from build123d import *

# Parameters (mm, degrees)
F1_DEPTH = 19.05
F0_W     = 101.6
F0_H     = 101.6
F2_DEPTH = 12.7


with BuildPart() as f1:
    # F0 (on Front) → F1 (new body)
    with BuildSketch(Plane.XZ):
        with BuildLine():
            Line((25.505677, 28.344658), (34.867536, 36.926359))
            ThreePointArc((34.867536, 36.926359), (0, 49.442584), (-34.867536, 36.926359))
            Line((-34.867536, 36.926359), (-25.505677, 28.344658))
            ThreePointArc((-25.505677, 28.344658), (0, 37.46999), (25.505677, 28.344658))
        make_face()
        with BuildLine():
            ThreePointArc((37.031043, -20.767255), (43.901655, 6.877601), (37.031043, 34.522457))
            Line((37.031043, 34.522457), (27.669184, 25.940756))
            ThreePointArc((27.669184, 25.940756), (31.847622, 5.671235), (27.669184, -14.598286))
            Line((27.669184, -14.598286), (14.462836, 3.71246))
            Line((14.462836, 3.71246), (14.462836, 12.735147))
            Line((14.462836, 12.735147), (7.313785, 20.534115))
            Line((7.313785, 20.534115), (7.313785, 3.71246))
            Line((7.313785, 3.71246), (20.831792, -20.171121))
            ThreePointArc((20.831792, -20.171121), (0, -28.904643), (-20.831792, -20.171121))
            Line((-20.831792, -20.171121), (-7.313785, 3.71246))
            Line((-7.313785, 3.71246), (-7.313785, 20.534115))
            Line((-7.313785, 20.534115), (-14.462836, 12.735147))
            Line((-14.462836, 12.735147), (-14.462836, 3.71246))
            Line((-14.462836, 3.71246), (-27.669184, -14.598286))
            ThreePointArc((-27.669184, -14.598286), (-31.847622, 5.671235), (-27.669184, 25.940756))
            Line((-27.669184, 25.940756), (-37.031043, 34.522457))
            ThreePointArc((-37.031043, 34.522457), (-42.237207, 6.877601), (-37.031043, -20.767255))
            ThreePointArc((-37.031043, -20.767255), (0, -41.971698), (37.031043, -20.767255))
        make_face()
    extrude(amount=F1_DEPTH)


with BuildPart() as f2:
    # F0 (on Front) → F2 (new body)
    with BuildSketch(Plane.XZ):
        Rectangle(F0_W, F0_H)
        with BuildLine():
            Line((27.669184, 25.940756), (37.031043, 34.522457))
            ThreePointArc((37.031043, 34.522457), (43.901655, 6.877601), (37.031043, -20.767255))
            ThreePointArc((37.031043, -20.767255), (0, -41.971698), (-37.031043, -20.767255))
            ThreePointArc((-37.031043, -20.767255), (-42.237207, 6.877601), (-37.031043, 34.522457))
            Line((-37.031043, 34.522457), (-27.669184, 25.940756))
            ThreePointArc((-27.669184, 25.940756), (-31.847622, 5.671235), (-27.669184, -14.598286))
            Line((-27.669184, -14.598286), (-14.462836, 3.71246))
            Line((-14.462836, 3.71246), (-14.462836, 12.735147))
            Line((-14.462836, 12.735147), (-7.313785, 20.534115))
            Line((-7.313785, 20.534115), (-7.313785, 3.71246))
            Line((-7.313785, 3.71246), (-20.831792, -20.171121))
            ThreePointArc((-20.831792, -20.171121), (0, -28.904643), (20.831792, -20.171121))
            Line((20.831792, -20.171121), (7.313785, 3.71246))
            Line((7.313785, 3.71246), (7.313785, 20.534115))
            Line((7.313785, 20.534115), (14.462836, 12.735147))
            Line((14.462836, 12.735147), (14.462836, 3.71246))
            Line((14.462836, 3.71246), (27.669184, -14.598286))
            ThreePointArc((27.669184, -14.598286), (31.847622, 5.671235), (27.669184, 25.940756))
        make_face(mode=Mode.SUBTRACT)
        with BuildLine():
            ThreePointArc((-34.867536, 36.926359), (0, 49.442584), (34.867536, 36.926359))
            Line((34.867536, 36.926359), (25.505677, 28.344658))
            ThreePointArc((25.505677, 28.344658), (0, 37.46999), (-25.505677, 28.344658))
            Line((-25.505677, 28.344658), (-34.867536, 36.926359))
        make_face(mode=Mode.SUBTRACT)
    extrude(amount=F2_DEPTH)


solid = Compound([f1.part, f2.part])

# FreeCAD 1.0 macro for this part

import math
import FreeCAD as App
import Part
import Sketcher

V = App.Vector
Q = App.Units.Quantity

doc = App.newDocument("Part")
body = doc.addObject("PartDesign::Body", "Body")
body.AllowCompound = True

sketch1 = doc.addObject("Sketcher::SketchObject", "Sketch")
body.addObject(sketch1)
sketch1.AttachmentSupport = (doc.XZ_Plane, [""])
sketch1.MapMode = "FlatFace"
sketch1.addGeometry([
    Part.LineSegment(V(26, 28, 0), V(35, 37, 0)),
    Part.ArcOfCircle(Part.Circle(V(0, -5, 0), V(0, 0, 1), 55), math.radians(51), math.radians(129)),
    Part.LineSegment(V(-35, 37, 0), V(-26, 28, 0)),
    Part.ArcOfCircle(Part.Circle(V(0, -3, 0), V(0, 0, 1), 40), math.radians(51), math.radians(129)),
    Part.ArcOfCircle(Part.Circle(V(-15, 7, 0), V(0, 0, 1), 59), math.radians(-28), math.radians(28)),
    Part.LineSegment(V(37, 35, 0), V(28, 26, 0)),
    Part.ArcOfCircle(Part.Circle(V(-19, 6, 0), V(0, 0, 1), 51), math.radians(-23), math.radians(23)),
    Part.LineSegment(V(28, -15, 0), V(14, 4, 0)),
    Part.LineSegment(V(14, 4, 0), V(14, 13, 0)),
    Part.LineSegment(V(14, 13, 0), V(7, 21, 0)),
    Part.LineSegment(V(7, 21, 0), V(7, 4, 0)),
    Part.LineSegment(V(7, 4, 0), V(21, -20, 0)),
    Part.ArcOfCircle(Part.Circle(V(0, 0, 0), V(0, 0, 1), 29), math.radians(-135), math.radians(-45)),
    Part.LineSegment(V(-21, -20, 0), V(-7, 4, 0)),
    Part.LineSegment(V(-7, 4, 0), V(-7, 21, 0)),
    Part.LineSegment(V(-7, 21, 0), V(-14, 13, 0)),
    Part.LineSegment(V(-14, 13, 0), V(-14, 4, 0)),
    Part.LineSegment(V(-14, 4, 0), V(-28, -15, 0)),
    Part.ArcOfCircle(Part.Circle(V(19, 6, 0), V(0, 0, 1), 51), math.radians(157), math.radians(203)),
    Part.LineSegment(V(-28, 26, 0), V(-37, 35, 0)),
    Part.ArcOfCircle(Part.Circle(V(34, 7, 0), V(0, 0, 1), 76), math.radians(159), math.radians(201)),
    Part.ArcOfCircle(Part.Circle(V(0, 1, 0), V(0, 0, 1), 43), math.radians(-150), math.radians(-30)),
], False)
sketch1.addConstraint([
    Sketcher.Constraint("Coincident", 0, 2, 1, 1),
    Sketcher.Constraint("Coincident", 1, 2, 2, 1),
    Sketcher.Constraint("Coincident", 2, 2, 3, 2),
    Sketcher.Constraint("Coincident", 3, 1, 0, 1),
    Sketcher.Constraint("Coincident", 4, 2, 5, 1),
    Sketcher.Constraint("Coincident", 5, 2, 6, 2),
    Sketcher.Constraint("Coincident", 6, 1, 7, 1),
    Sketcher.Constraint("Coincident", 7, 2, 8, 1),
    Sketcher.Constraint("Coincident", 8, 2, 9, 1),
    Sketcher.Constraint("Coincident", 9, 2, 10, 1),
    Sketcher.Constraint("Coincident", 10, 2, 11, 1),
    Sketcher.Constraint("Coincident", 11, 2, 12, 2),
    Sketcher.Constraint("Coincident", 12, 1, 13, 1),
    Sketcher.Constraint("Coincident", 13, 2, 14, 1),
    Sketcher.Constraint("Coincident", 14, 2, 15, 1),
    Sketcher.Constraint("Coincident", 15, 2, 16, 1),
    Sketcher.Constraint("Coincident", 16, 2, 17, 1),
    Sketcher.Constraint("Coincident", 17, 2, 18, 2),
    Sketcher.Constraint("Coincident", 18, 1, 19, 1),
    Sketcher.Constraint("Coincident", 19, 2, 20, 1),
    Sketcher.Constraint("Coincident", 20, 2, 21, 1),
    Sketcher.Constraint("Coincident", 21, 2, 4, 1),
    Sketcher.Constraint("Vertical", 8),
    Sketcher.Constraint("Vertical", 10),
    Sketcher.Constraint("Vertical", 14),
    Sketcher.Constraint("Vertical", 16),
    Sketcher.Constraint("Equal", 6, 18),
    Sketcher.Constraint("Symmetric", 6, 3, 18, 3, -2),
    Sketcher.Constraint("Symmetric", 0, 2, 1, 2, -2),
    Sketcher.Constraint("Symmetric", 2, 2, 3, 1, -2),
    Sketcher.Constraint("Symmetric", 11, 2, 12, 1, -2),
    Sketcher.Constraint("Symmetric", 10, 2, 13, 2, -2),
    Sketcher.Constraint("Symmetric", 8, 2, 15, 2, -2),
    Sketcher.Constraint("Symmetric", 4, 2, 19, 2, -2),
    Sketcher.Constraint("Symmetric", 20, 2, 21, 2, -2),
    Sketcher.Constraint("Parallel", 0, 5),
    Sketcher.Constraint("Perpendicular", 5, 9),
    Sketcher.Constraint("Perpendicular", 2, 15),
    Sketcher.Constraint("Perpendicular", 15, 19),
    Sketcher.Constraint("Horizontal", 4, 3, 20, 3),
    Sketcher.Constraint("Horizontal", 7, 2, 10, 2),
    Sketcher.Constraint("Horizontal", 13, 2, 16, 2),
    Sketcher.Constraint("Horizontal", 6, 1, 17, 2),
    Sketcher.Constraint("Vertical", 5, 2, 6, 1),
    Sketcher.Constraint("Equal", 2, 5),
    Sketcher.Constraint("Distance", 0, Q("0.5 in")),
    Sketcher.Constraint("Radius", 1, 54.824876),
    Sketcher.Constraint("Radius", 3, 40.207372),
    Sketcher.Constraint("Radius", 4, 59.051754),
    Sketcher.Constraint("Radius", 6, 51.252744),
    Sketcher.Constraint("Radius", 12, 29.211466),
    Sketcher.Constraint("Radius", 20, 76.000507),
    Sketcher.Constraint("Radius", 21, 42.937382),
    Sketcher.Constraint("DistanceX", 2, 2, 4, 3, Q("0.4076999 in")),
    Sketcher.Constraint("DistanceX", 4, 3, -1, 1, 15.150099),
    Sketcher.Constraint("DistanceY", -1, 1, 4, 3, 6.877601),
    Sketcher.Constraint("DistanceX", -1, 1, 20, 3, 33.7633),
    Sketcher.Constraint("DistanceY", 2, 2, 1, 2, 8.581701),
    Sketcher.Constraint("DistanceY", 4, 2, 0, 2, 2.403902),
    Sketcher.Constraint("DistanceX", 17, 2, 13, 2, 20.355399),
    Sketcher.Constraint("Distance", 7, 22.576338),
    Sketcher.Constraint("Distance", 9, 10.579831),
    Sketcher.Constraint("DistanceY", 8, 1, 8, 2, 9.022687),
    Sketcher.Constraint("DistanceX", 6, 3, -1, 1, 19.405122),
    Sketcher.Constraint("DistanceX", -1, 1, 11, 2, 20.831792),
    Sketcher.Constraint("DistanceY", 11, 2, -1, 1, 20.171121),
])
pad1 = doc.addObject("PartDesign::Pad", "Pad")
body.addObject(pad1)
pad1.Profile = sketch1
pad1.Length = Q("0.75 in")
body2 = doc.addObject("PartDesign::Body", "Body001")

sketch2 = doc.addObject("Sketcher::SketchObject", "Sketch001")
body2.addObject(sketch2)
sketch2.AttachmentSupport = (doc.getObject("XZ_Plane001"), [""])
sketch2.MapMode = "FlatFace"
sketch2.addGeometry([
    Part.LineSegment(V(-51, 51, 0), V(-51, -51, 0)),
    Part.LineSegment(V(-51, -51, 0), V(51, -51, 0)),
    Part.LineSegment(V(51, -51, 0), V(51, 51, 0)),
    Part.LineSegment(V(51, 51, 0), V(-51, 51, 0)),
    Part.ArcOfCircle(Part.Circle(V(-19, 6, 0), V(0, 0, 1), 51), math.radians(-23), math.radians(23)),
    Part.LineSegment(V(28, 26, 0), V(37, 35, 0)),
    Part.ArcOfCircle(Part.Circle(V(-15, 7, 0), V(0, 0, 1), 59), math.radians(-28), math.radians(28)),
    Part.ArcOfCircle(Part.Circle(V(0, 1, 0), V(0, 0, 1), 43), math.radians(-150), math.radians(-30)),
    Part.ArcOfCircle(Part.Circle(V(34, 7, 0), V(0, 0, 1), 76), math.radians(159), math.radians(201)),
    Part.LineSegment(V(-37, 35, 0), V(-28, 26, 0)),
    Part.ArcOfCircle(Part.Circle(V(19, 6, 0), V(0, 0, 1), 51), math.radians(157), math.radians(203)),
    Part.LineSegment(V(-28, -15, 0), V(-14, 4, 0)),
    Part.LineSegment(V(-14, 4, 0), V(-14, 13, 0)),
    Part.LineSegment(V(-14, 13, 0), V(-7, 21, 0)),
    Part.LineSegment(V(-7, 21, 0), V(-7, 4, 0)),
    Part.LineSegment(V(-7, 4, 0), V(-21, -20, 0)),
    Part.ArcOfCircle(Part.Circle(V(0, 0, 0), V(0, 0, 1), 29), math.radians(-135), math.radians(-45)),
    Part.LineSegment(V(21, -20, 0), V(7, 4, 0)),
    Part.LineSegment(V(7, 4, 0), V(7, 21, 0)),
    Part.LineSegment(V(7, 21, 0), V(14, 13, 0)),
    Part.LineSegment(V(14, 13, 0), V(14, 4, 0)),
    Part.LineSegment(V(14, 4, 0), V(28, -15, 0)),
    Part.LineSegment(V(-26, 28, 0), V(-35, 37, 0)),
    Part.ArcOfCircle(Part.Circle(V(0, -5, 0), V(0, 0, 1), 55), math.radians(51), math.radians(129)),
    Part.LineSegment(V(35, 37, 0), V(26, 28, 0)),
    Part.ArcOfCircle(Part.Circle(V(0, -3, 0), V(0, 0, 1), 40), math.radians(51), math.radians(129)),
], False)
sketch2.addConstraint([
    Sketcher.Constraint("Coincident", 0, 2, 1, 1),
    Sketcher.Constraint("Coincident", 1, 2, 2, 1),
    Sketcher.Constraint("Coincident", 2, 2, 3, 1),
    Sketcher.Constraint("Coincident", 3, 2, 0, 1),
    Sketcher.Constraint("Coincident", 4, 2, 5, 1),
    Sketcher.Constraint("Coincident", 5, 2, 6, 2),
    Sketcher.Constraint("Coincident", 6, 1, 7, 2),
    Sketcher.Constraint("Coincident", 7, 1, 8, 2),
    Sketcher.Constraint("Coincident", 8, 1, 9, 1),
    Sketcher.Constraint("Coincident", 9, 2, 10, 1),
    Sketcher.Constraint("Coincident", 10, 2, 11, 1),
    Sketcher.Constraint("Coincident", 11, 2, 12, 1),
    Sketcher.Constraint("Coincident", 12, 2, 13, 1),
    Sketcher.Constraint("Coincident", 13, 2, 14, 1),
    Sketcher.Constraint("Coincident", 14, 2, 15, 1),
    Sketcher.Constraint("Coincident", 15, 2, 16, 1),
    Sketcher.Constraint("Coincident", 16, 2, 17, 1),
    Sketcher.Constraint("Coincident", 17, 2, 18, 1),
    Sketcher.Constraint("Coincident", 18, 2, 19, 1),
    Sketcher.Constraint("Coincident", 19, 2, 20, 1),
    Sketcher.Constraint("Coincident", 20, 2, 21, 1),
    Sketcher.Constraint("Coincident", 21, 2, 4, 1),
    Sketcher.Constraint("Coincident", 22, 2, 23, 2),
    Sketcher.Constraint("Coincident", 23, 1, 24, 1),
    Sketcher.Constraint("Coincident", 24, 2, 25, 1),
    Sketcher.Constraint("Coincident", 25, 2, 22, 1),
    Sketcher.Constraint("Vertical", 0),
    Sketcher.Constraint("Horizontal", 1),
    Sketcher.Constraint("Vertical", 2),
    Sketcher.Constraint("Horizontal", 3),
    Sketcher.Constraint("Vertical", 12),
    Sketcher.Constraint("Vertical", 14),
    Sketcher.Constraint("Vertical", 18),
    Sketcher.Constraint("Vertical", 20),
    Sketcher.Constraint("Equal", 4, 10),
    Sketcher.Constraint("Symmetric", 0, 2, 2, 2, -1, 1),
    Sketcher.Constraint("Symmetric", 4, 3, 10, 3, -2),
    Sketcher.Constraint("Symmetric", 6, 1, 7, 1, -2),
    Sketcher.Constraint("Symmetric", 5, 2, 8, 1, -2),
    Sketcher.Constraint("Symmetric", 15, 2, 16, 2, -2),
    Sketcher.Constraint("Symmetric", 14, 2, 17, 2, -2),
    Sketcher.Constraint("Symmetric", 12, 2, 19, 2, -2),
    Sketcher.Constraint("Symmetric", 22, 2, 23, 1, -2),
    Sketcher.Constraint("Symmetric", 24, 2, 25, 2, -2),
    Sketcher.Constraint("Perpendicular", 9, 13),
    Sketcher.Constraint("Perpendicular", 5, 19),
    Sketcher.Constraint("Perpendicular", 13, 22),
    Sketcher.Constraint("Perpendicular", 19, 24),
    Sketcher.Constraint("Horizontal", 6, 3, 8, 3),
    Sketcher.Constraint("Horizontal", 11, 2, 14, 2),
    Sketcher.Constraint("Horizontal", 17, 2, 20, 2),
    Sketcher.Constraint("Horizontal", 10, 2, 21, 2),
    Sketcher.Constraint("Vertical", 9, 2, 10, 2),
    Sketcher.Constraint("Equal", 3, 0),
    Sketcher.Constraint("Equal", 9, 22),
    Sketcher.Constraint("DistanceX", 1, 1, 1, 2, Q("4 in")),
    Sketcher.Constraint("Distance", 5, Q("0.5 in")),
    Sketcher.Constraint("Radius", 4, 51.252744),
    Sketcher.Constraint("Radius", 6, 59.051754),
    Sketcher.Constraint("Radius", 7, 42.937382),
    Sketcher.Constraint("Radius", 8, 76.000507),
    Sketcher.Constraint("Radius", 16, 29.211466),
    Sketcher.Constraint("Radius", 23, 54.824876),
    Sketcher.Constraint("Radius", 25, 40.207372),
    Sketcher.Constraint("DistanceX", 6, 3, -1, 1, 15.150099),
    Sketcher.Constraint("DistanceY", -1, 1, 6, 3, 6.877601),
    Sketcher.Constraint("DistanceX", -1, 1, 8, 3, 33.7633),
    Sketcher.Constraint("DistanceY", 4, 2, 5, 2, 8.581701),
    Sketcher.Constraint("DistanceX", 18, 2, 4, 2, 20.355399),
    Sketcher.Constraint("DistanceX", 22, 2, 12, 2, 20.4047),
    Sketcher.Constraint("DistanceY", 5, 2, 23, 1, 2.403902),
    Sketcher.Constraint("Distance", 11, 22.576338),
    Sketcher.Constraint("Distance", 13, 10.579831),
    Sketcher.Constraint("DistanceY", 12, 1, 12, 2, 9.022687),
    Sketcher.Constraint("DistanceX", 4, 3, -1, 1, 19.405122),
    Sketcher.Constraint("DistanceX", 15, 2, -1, 1, 20.831792),
    Sketcher.Constraint("DistanceY", 15, 2, -1, 1, 20.171121),
])
pad2 = doc.addObject("PartDesign::Pad", "Pad001")
body2.addObject(pad2)
pad2.Profile = sketch2
pad2.Length = Q("0.5 in")

doc.recompute()
